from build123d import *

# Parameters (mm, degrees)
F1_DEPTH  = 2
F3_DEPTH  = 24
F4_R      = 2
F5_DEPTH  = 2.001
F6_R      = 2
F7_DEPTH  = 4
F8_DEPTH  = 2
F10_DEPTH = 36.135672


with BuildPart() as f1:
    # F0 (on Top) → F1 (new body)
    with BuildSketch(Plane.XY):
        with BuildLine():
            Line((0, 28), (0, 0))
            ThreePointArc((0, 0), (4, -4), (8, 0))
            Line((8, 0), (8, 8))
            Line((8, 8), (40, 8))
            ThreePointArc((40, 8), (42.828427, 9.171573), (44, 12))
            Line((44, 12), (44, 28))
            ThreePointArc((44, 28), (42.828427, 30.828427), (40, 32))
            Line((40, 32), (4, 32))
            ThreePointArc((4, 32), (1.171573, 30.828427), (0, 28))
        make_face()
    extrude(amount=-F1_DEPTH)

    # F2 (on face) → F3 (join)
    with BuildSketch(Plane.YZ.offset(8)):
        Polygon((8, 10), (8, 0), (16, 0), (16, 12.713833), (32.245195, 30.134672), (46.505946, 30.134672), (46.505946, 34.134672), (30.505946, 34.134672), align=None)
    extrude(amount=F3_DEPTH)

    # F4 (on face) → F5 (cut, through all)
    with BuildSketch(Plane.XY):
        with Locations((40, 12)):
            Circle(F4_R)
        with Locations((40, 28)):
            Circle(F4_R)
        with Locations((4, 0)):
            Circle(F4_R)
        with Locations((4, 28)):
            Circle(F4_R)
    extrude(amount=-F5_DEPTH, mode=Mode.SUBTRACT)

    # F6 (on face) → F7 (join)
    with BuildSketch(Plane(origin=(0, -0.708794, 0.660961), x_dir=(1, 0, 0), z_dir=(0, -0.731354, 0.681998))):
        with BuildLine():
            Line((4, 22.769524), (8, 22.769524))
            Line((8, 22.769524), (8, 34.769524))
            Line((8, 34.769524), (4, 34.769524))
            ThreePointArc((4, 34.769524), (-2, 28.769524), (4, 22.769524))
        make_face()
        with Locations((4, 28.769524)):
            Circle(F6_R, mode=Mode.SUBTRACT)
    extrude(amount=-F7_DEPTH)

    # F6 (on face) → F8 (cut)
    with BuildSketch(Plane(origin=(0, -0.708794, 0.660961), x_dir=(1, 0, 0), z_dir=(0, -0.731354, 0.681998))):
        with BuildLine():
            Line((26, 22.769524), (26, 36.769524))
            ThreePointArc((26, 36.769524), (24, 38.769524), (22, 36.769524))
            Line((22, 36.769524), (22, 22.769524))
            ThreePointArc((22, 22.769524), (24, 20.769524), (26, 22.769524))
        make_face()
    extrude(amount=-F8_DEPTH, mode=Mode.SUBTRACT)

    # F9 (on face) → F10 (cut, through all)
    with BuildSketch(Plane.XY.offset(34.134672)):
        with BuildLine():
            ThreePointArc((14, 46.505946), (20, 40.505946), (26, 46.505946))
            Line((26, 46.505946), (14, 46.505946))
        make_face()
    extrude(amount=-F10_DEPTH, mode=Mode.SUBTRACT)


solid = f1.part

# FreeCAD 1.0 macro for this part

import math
import FreeCAD as App
import Part
import Sketcher

V = App.Vector
Q = App.Units.Quantity

doc = App.newDocument("Part")
body = doc.addObject("PartDesign::Body", "Body")

# Sketch on XY plane
sketch1 = body.newObject("Sketcher::SketchObject", "Sketch")
sketch1.AttachmentSupport = (doc.getObject("XY_Plane"), [""])
sketch1.MapMode = "FlatFace"
sketch1.addGeometry([
    Part.LineSegment(V(0, 28, 0), V(0, 0, 0)),  # 0
    Part.ArcOfCircle(Part.Circle(V(4, 0, 0), V(0, 0, 1), 4), math.radians(180), math.radians(360)),  # 1
    Part.LineSegment(V(8, 0, 0), V(8, 8, 0)),  # 2
    Part.LineSegment(V(8, 8, 0), V(40, 8, 0)),  # 3
    Part.ArcOfCircle(Part.Circle(V(40, 12, 0), V(0, 0, 1), 4), math.radians(-90), math.radians(0)),  # 4
    Part.LineSegment(V(44, 12, 0), V(44, 28, 0)),  # 5
    Part.ArcOfCircle(Part.Circle(V(40, 28, 0), V(0, 0, 1), 4), math.radians(0), math.radians(90)),  # 6
    Part.LineSegment(V(40, 32, 0), V(4, 32, 0)),  # 7
    Part.ArcOfCircle(Part.Circle(V(4, 28, 0), V(0, 0, 1), 4), math.radians(90), math.radians(180)),  # 8
], False)
sketch1.addConstraint([
    Sketcher.Constraint("Tangent", 0, 2, 1, 1),
    Sketcher.Constraint("Tangent", 1, 2, 2, 1),
    Sketcher.Constraint("Coincident", 2, 2, 3, 1),
    Sketcher.Constraint("Tangent", 3, 2, 4, 1),
    Sketcher.Constraint("Tangent", 4, 2, 5, 1),
    Sketcher.Constraint("Tangent", 5, 2, 6, 1),
    Sketcher.Constraint("Tangent", 6, 2, 7, 1),
    Sketcher.Constraint("Tangent", 7, 2, 8, 1),
    Sketcher.Constraint("Tangent", 8, 2, 0, 1),
    Sketcher.Constraint("Vertical", 0),
    Sketcher.Constraint("Vertical", 2),
    Sketcher.Constraint("Horizontal", 3),
    Sketcher.Constraint("Vertical", 5),
    Sketcher.Constraint("Horizontal", 7),
    Sketcher.Constraint("Coincident", 0, 2, -1, 1),
    Sketcher.Constraint("Equal", 1, 4),
    Sketcher.Constraint("Equal", 4, 6),
    Sketcher.Constraint("Equal", 6, 8),
    Sketcher.Constraint("Radius", 1, Q("4 mm")),
    Sketcher.Constraint("DistanceX", 3, 1, 3, 2, Q("32 mm")),
    Sketcher.Constraint("DistanceY", 0, 2, 0, 1, Q("28 mm")),
    Sketcher.Constraint("DistanceY", 2, 1, 2, 2, Q("8 mm")),
])
pad1 = body.newObject("PartDesign::Pad", "Pad")
pad1.Profile = sketch1
pad1.Length = 2
pad1.Reversed = True

# Sketch on YZ plane
sketch2 = body.newObject("Sketcher::SketchObject", "Sketch001")
sketch2.AttachmentSupport = (doc.getObject("YZ_Plane"), [""])
sketch2.MapMode = "FlatFace"
sketch2.AttachmentOffset = App.Placement(V(0, 0, 8), App.Rotation())
sketch2.addGeometry([
    Part.LineSegment(V(8, 10, 0), V(8, 0, 0)),  # 0
    Part.LineSegment(V(8, 0, 0), V(16, 0, 0)),  # 1
    Part.LineSegment(V(16, 0, 0), V(16, 12.7, 0)),  # 2
    Part.LineSegment(V(16, 12.7, 0), V(32.2, 30.1, 0)),  # 3
    Part.LineSegment(V(32.2, 30.1, 0), V(46.5, 30.1, 0)),  # 4
    Part.LineSegment(V(46.5, 30.1, 0), V(46.5, 34.1, 0)),  # 5
    Part.LineSegment(V(46.5, 34.1, 0), V(30.5, 34.1, 0)),  # 6
    Part.LineSegment(V(30.5, 34.1, 0), V(8, 10, 0)),  # 7
], False)
sketch2.addConstraint([
    Sketcher.Constraint("Coincident", 0, 2, 1, 1),
    Sketcher.Constraint("Coincident", 1, 2, 2, 1),
    Sketcher.Constraint("Coincident", 2, 2, 3, 1),
    Sketcher.Constraint("Coincident", 3, 2, 4, 1),
    Sketcher.Constraint("Coincident", 4, 2, 5, 1),
    Sketcher.Constraint("Coincident", 5, 2, 6, 1),
    Sketcher.Constraint("Coincident", 6, 2, 7, 1),
    Sketcher.Constraint("Coincident", 7, 2, 0, 1),
    Sketcher.Constraint("Vertical", 0),
    Sketcher.Constraint("Horizontal", 1),
    Sketcher.Constraint("Vertical", 2),
    Sketcher.Constraint("Horizontal", 4),
    Sketcher.Constraint("Vertical", 5),
    Sketcher.Constraint("Horizontal", 6),
    Sketcher.Constraint("PointOnObject", 0, 2, -1),
    Sketcher.Constraint("Parallel", 3, 7),
    Sketcher.Constraint("DistanceX", 1, 1, 1, 2, Q("8 mm")),
    Sketcher.Constraint("DistanceX", 6, 2, 6, 1, Q("16 mm")),
    Sketcher.Constraint("DistanceY", 0, 2, 0, 1, Q("10 mm")),
    Sketcher.Constraint("DistanceY", 5, 1, 5, 2, Q("4 mm")),
    Sketcher.Constraint("Angle", 3, Q("47 deg")),
    Sketcher.Constraint("Distance", 7, Q("33 mm")),
    Sketcher.Constraint("DistanceX", -1, 1, 0, 2, Q("8 mm")),
    Sketcher.Constraint("DistanceX", 4, 1, 4, 2, Q("14.260751 mm")),
])
pad2 = body.newObject("PartDesign::Pad", "Pad001")
pad2.Profile = sketch2
pad2.Length = 24

# Sketch on XY plane
sketch3 = body.newObject("Sketcher::SketchObject", "Sketch002")
sketch3.AttachmentSupport = (doc.getObject("XY_Plane"), [""])
sketch3.MapMode = "FlatFace"
sketch3.addGeometry([
    Part.Circle(V(40, 12, 0), V(0, 0, 1), 2),
    Part.Circle(V(40, 28, 0), V(0, 0, 1), 2),
    Part.Circle(V(4, 0, 0), V(0, 0, 1), 2),
    Part.Circle(V(4, 28, 0), V(0, 0, 1), 2),
], False)
sketch3.addConstraint([
    Sketcher.Constraint("Equal", 0, 1),
    Sketcher.Constraint("Equal", 1, 2),
    Sketcher.Constraint("Equal", 2, 3),
    Sketcher.Constraint("PointOnObject", 2, 3, -1),
    Sketcher.Constraint("Horizontal", 1, 3, 3, 3),
    Sketcher.Constraint("Vertical", 0, 3, 1, 3),
    Sketcher.Constraint("Vertical", 2, 3, 3, 3),
    Sketcher.Constraint("Diameter", 0, Q("4 mm")),
    Sketcher.Constraint("DistanceX", -1, 1, 0, 3, Q("40 mm")),
    Sketcher.Constraint("DistanceY", -1, 1, 0, 3, Q("12 mm")),
    Sketcher.Constraint("DistanceY", -1, 1, 1, 3, Q("28 mm")),
    Sketcher.Constraint("DistanceX", -1, 1, 2, 3, Q("4 mm")),
])
pocket1 = body.newObject("PartDesign::Pocket", "Pocket")
pocket1.Profile = sketch3
pocket1.Type = "ThroughAll"

# Sketch on an angled plane
sketch4 = body.newObject("Sketcher::SketchObject", "Sketch003")
sketch4.Placement = App.Placement(V(0, -0.708794, 0.660961), App.Rotation(V(1, 0, 0), V(0, 0.681998019, 0.73135402), V(0, -0.73135402, 0.681998019), "ZXY"))
sketch4.addGeometry([
    Part.LineSegment(V(4, 22.8, 0), V(8, 22.8, 0)),  # 0
    Part.LineSegment(V(8, 22.8, 0), V(8, 34.8, 0)),  # 1
    Part.LineSegment(V(8, 34.8, 0), V(4, 34.8, 0)),  # 2
    Part.ArcOfCircle(Part.Circle(V(4, 28.8, 0), V(0, 0, 1), 6), math.radians(90), math.radians(270)),  # 3
    Part.Circle(V(4, 28.8, 0), V(0, 0, 1), 2),  # 4
], False)
sketch4.addConstraint([
    Sketcher.Constraint("Coincident", 0, 2, 1, 1),
    Sketcher.Constraint("Coincident", 1, 2, 2, 1),
    Sketcher.Constraint("Tangent", 2, 2, 3, 1),
    Sketcher.Constraint("Tangent", 3, 2, 0, 1),
    Sketcher.Constraint("Horizontal", 0),
    Sketcher.Constraint("Vertical", 1),
    Sketcher.Constraint("Horizontal", 2),
    Sketcher.Constraint("Coincident", 4, 3, 3, 3),
    Sketcher.Constraint("Diameter", 4, Q("4 mm")),
    Sketcher.Constraint("Radius", 3, Q("6 mm")),
    Sketcher.Constraint("DistanceX", 0, 1, 0, 2, Q("4 mm")),
    Sketcher.Constraint("DistanceX", -1, 1, 3, 3, Q("4 mm")),
    Sketcher.Constraint("DistanceY", -1, 1, 3, 3, Q("28.769524 mm")),
])
pad3 = body.newObject("PartDesign::Pad", "Pad002")
pad3.Profile = sketch4
pad3.Length = 4
pad3.Reversed = True

# Sketch on an angled plane
sketch5 = body.newObject("Sketcher::SketchObject", "Sketch004")
sketch5.Placement = App.Placement(V(0, -0.708794, 0.660961), App.Rotation(V(1, 0, 0), V(0, 0.681998019, 0.73135402), V(0, -0.73135402, 0.681998019), "ZXY"))
sketch5.addGeometry([
    Part.LineSegment(V(26, 22.8, 0), V(26, 36.8, 0)),
    Part.ArcOfCircle(Part.Circle(V(24, 36.8, 0), V(0, 0, 1), 2), math.radians(0), math.radians(180)),
    Part.LineSegment(V(22, 36.8, 0), V(22, 22.8, 0)),
    Part.ArcOfCircle(Part.Circle(V(24, 22.8, 0), V(0, 0, 1), 2), math.radians(180), math.radians(360)),
], False)
sketch5.addConstraint([
    Sketcher.Constraint("Tangent", 0, 2, 1, 1),
    Sketcher.Constraint("Tangent", 1, 2, 2, 1),
    Sketcher.Constraint("Tangent", 2, 2, 3, 1),
    Sketcher.Constraint("Tangent", 3, 2, 0, 1),
    Sketcher.Constraint("Vertical", 0),
    Sketcher.Constraint("Vertical", 2),
    Sketcher.Constraint("Radius", 1, Q("2 mm")),
    Sketcher.Constraint("DistanceY", 0, 1, 0, 2, Q("14 mm")),
    Sketcher.Constraint("DistanceX", -1, 1, 1, 3, Q("24 mm")),
    Sketcher.Constraint("DistanceY", -1, 1, 1, 3, Q("36.769524 mm")),
])
pocket2 = body.newObject("PartDesign::Pocket", "Pocket001")
pocket2.Profile = sketch5
pocket2.Length = 2

# Sketch on XY plane
sketch6 = body.newObject("Sketcher::SketchObject", "Sketch005")
sketch6.AttachmentSupport = (doc.getObject("XY_Plane"), [""])
sketch6.MapMode = "FlatFace"
sketch6.AttachmentOffset = App.Placement(V(0, 0, 34.134672), App.Rotation())
sketch6.addGeometry([
    Part.ArcOfCircle(Part.Circle(V(20, 47, 0), V(0, 0, 1), 6), math.radians(180), math.radians(360)),
    Part.LineSegment(V(26, 47, 0), V(14, 47, 0)),
], False)
sketch6.addConstraint([
    Sketcher.Constraint("Coincident", 0, 1, 1, 2),
    Sketcher.Constraint("Coincident", 1, 1, 0, 2),
    Sketcher.Constraint("Horizontal", 1),
    Sketcher.Constraint("Radius", 0, Q("6 mm")),
    Sketcher.Constraint("DistanceX", -1, 1, 0, 3, Q("20 mm")),
    Sketcher.Constraint("DistanceY", -1, 1, 0, 3, Q("46.505946 mm")),
    Sketcher.Constraint("DistanceY", -1, 1, 0, 1, Q("46.505946 mm")),
])
pocket3 = body.newObject("PartDesign::Pocket", "Pocket002")
pocket3.Profile = sketch6
pocket3.Type = "ThroughAll"

doc.recompute()
